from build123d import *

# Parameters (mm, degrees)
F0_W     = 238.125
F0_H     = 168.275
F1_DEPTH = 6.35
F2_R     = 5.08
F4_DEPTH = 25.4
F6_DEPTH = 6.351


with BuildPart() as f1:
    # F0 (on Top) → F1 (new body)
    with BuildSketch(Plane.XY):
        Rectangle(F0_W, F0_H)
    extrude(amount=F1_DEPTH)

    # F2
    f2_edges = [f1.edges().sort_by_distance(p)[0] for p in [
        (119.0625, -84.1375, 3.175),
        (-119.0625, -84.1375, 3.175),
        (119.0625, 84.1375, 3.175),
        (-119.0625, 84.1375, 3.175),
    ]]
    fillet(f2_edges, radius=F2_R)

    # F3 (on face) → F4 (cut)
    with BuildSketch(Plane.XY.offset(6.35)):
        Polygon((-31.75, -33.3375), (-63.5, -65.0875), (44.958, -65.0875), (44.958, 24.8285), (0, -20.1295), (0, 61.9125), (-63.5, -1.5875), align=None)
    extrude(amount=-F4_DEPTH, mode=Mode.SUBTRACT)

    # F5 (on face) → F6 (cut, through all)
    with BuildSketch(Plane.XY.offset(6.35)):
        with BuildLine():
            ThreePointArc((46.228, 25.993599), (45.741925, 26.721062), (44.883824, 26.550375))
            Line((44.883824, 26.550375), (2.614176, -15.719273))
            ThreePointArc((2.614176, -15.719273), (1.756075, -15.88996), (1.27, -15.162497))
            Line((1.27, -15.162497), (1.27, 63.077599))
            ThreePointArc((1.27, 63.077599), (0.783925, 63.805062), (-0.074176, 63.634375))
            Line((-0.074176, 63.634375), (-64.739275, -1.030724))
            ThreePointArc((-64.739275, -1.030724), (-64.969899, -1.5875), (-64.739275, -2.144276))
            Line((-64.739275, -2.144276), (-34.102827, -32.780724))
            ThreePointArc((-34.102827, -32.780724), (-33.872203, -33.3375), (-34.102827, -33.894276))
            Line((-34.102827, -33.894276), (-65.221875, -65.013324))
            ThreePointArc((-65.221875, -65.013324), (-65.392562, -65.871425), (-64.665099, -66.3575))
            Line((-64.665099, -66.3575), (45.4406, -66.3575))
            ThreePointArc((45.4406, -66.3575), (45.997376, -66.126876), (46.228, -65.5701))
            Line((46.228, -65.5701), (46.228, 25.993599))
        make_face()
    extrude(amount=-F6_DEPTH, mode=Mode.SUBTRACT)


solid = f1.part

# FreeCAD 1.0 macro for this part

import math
import FreeCAD as App
import Part
import Sketcher

V = App.Vector
Q = App.Units.Quantity


def edges_at(feature, points):
    """Names of the edges that pass closest to the given points."""
    edges = feature.Shape.Edges
    near = lambda p: min(range(len(edges)), key=lambda i: edges[i].distToShape(Part.Vertex(*p))[0])
    return sorted({f"Edge{near(p) + 1}" for p in points})

doc = App.newDocument("Part")
body = doc.addObject("PartDesign::Body", "Body")

# Sketch on XY plane
sketch1 = doc.addObject("Sketcher::SketchObject", "Sketch")
body.addObject(sketch1)
sketch1.AttachmentSupport = (doc.XY_Plane, [""])
sketch1.MapMode = "FlatFace"
sketch1.addGeometry(Part.LineSegment(V(-119, 84, 0), V(-119, -84, 0)), False)
sketch1.addGeometry(Part.LineSegment(V(-119, -84, 0), V(119, -84, 0)), False)
sketch1.addGeometry(Part.LineSegment(V(119, -84, 0), V(119, 84, 0)), False)
sketch1.addGeometry(Part.LineSegment(V(119, 84, 0), V(-119, 84, 0)), False)
sketch1.addConstraint(Sketcher.Constraint("Coincident", 0, 2, 1, 1))
sketch1.addConstraint(Sketcher.Constraint("Coincident", 1, 2, 2, 1))
sketch1.addConstraint(Sketcher.Constraint("Coincident", 2, 2, 3, 1))
sketch1.addConstraint(Sketcher.Constraint("Coincident", 3, 2, 0, 1))
sketch1.addConstraint(Sketcher.Constraint("Vertical", 0))
sketch1.addConstraint(Sketcher.Constraint("Horizontal", 1))
sketch1.addConstraint(Sketcher.Constraint("Vertical", 2))
sketch1.addConstraint(Sketcher.Constraint("Horizontal", 3))
sketch1.addConstraint(Sketcher.Constraint("Symmetric", 0, 2, 2, 2, -1, 1))
sketch1.addConstraint(Sketcher.Constraint("DistanceX", 1, 1, 1, 2, Q("9.375 in")))
sketch1.addConstraint(Sketcher.Constraint("DistanceY", 0, 2, 0, 1, Q("6.625 in")))
pad1 = doc.addObject("PartDesign::Pad", "Pad")
body.addObject(pad1)
pad1.Profile = sketch1
pad1.Length = Q("0.25 in")
doc.recompute()

fillet = doc.addObject("PartDesign::Fillet", "Fillet")
body.addObject(fillet)
fillet.Base = (pad1, edges_at(pad1, [
    (119.062, -84.138, 3.175),
    (-119.062, -84.138, 3.175),
    (119.062, 84.138, 3.175),
    (-119.062, 84.138, 3.175),
]))
fillet.Radius = Q("0.2 in")

# Sketch on XY plane
sketch2 = doc.addObject("Sketcher::SketchObject", "Sketch001")
body.addObject(sketch2)
sketch2.AttachmentSupport = (doc.XY_Plane, [""])
sketch2.MapMode = "FlatFace"
sketch2.AttachmentOffset = App.Placement(V(0, 0, 0.25 * 25.4), App.Rotation())
sketch2.addGeometry(Part.LineSegment(V(-32, -33, 0), V(-64, -65, 0)), False)
sketch2.addGeometry(Part.LineSegment(V(-64, -65, 0), V(45, -65, 0)), False)
sketch2.addGeometry(Part.LineSegment(V(45, -65, 0), V(45, 25, 0)), False)
sketch2.addGeometry(Part.LineSegment(V(45, 25, 0), V(0, -20, 0)), False)
sketch2.addGeometry(Part.LineSegment(V(0, -20, 0), V(0, 62, 0)), False)
sketch2.addGeometry(Part.LineSegment(V(0, 62, 0), V(-64, -2, 0)), False)
sketch2.addGeometry(Part.LineSegment(V(-64, -2, 0), V(-32, -33, 0)), False)
sketch2.addConstraint(Sketcher.Constraint("Coincident", 0, 2, 1, 1))
sketch2.addConstraint(Sketcher.Constraint("Coincident", 1, 2, 2, 1))
sketch2.addConstraint(Sketcher.Constraint("Coincident", 2, 2, 3, 1))
sketch2.addConstraint(Sketcher.Constraint("Coincident", 3, 2, 4, 1))
sketch2.addConstraint(Sketcher.Constraint("Coincident", 4, 2, 5, 1))
sketch2.addConstraint(Sketcher.Constraint("Coincident", 5, 2, 6, 1))
sketch2.addConstraint(Sketcher.Constraint("Coincident", 6, 2, 0, 1))
sketch2.addConstraint(Sketcher.Constraint("Horizontal", 1))
sketch2.addConstraint(Sketcher.Constraint("Vertical", 2))
sketch2.addConstraint(Sketcher.Constraint("Vertical", 4))
sketch2.addConstraint(Sketcher.Constraint("PointOnObject", 3, 2, -2))
sketch2.addConstraint(Sketcher.Constraint("Parallel", 0, 3))
sketch2.addConstraint(Sketcher.Constraint("Parallel", 3, 5))
sketch2.addConstraint(Sketcher.Constraint("Perpendicular", 5, 6))
sketch2.addConstraint(Sketcher.Constraint("Vertical", 0, 2, 5, 2))
sketch2.addConstraint(Sketcher.Constraint("Equal", 0, 6))
sketch2.addConstraint(Sketcher.Constraint("DistanceY", 1, 2, 4, 2, Q("5 in")))
sketch2.addConstraint(Sketcher.Constraint("DistanceX", 1, 1, 1, 2, Q("4.27 in")))
sketch2.addConstraint(Sketcher.Constraint("DistanceY", 2, 1, 2, 2, Q("3.54 in")))
sketch2.addConstraint(Sketcher.Constraint("DistanceY", 4, 1, 4, 2, Q("3.23 in")))
sketch2.addConstraint(Sketcher.Constraint("DistanceY", 0, 2, -1, 1, Q("2.5625 in")))
pocket1 = doc.addObject("PartDesign::Pocket", "Pocket")
body.addObject(pocket1)
pocket1.Profile = sketch2
pocket1.Length = Q("1 in")

# Sketch on XY plane
sketch3 = doc.addObject("Sketcher::SketchObject", "Sketch002")
body.addObject(sketch3)
sketch3.AttachmentSupport = (doc.XY_Plane, [""])
sketch3.MapMode = "FlatFace"
sketch3.AttachmentOffset = App.Placement(V(0, 0, 0.25 * 25.4), App.Rotation())
sketch3.addGeometry(Part.ArcOfCircle(Part.Circle(V(45.4, 26, 0), V(0, 0, 1), 0.8), math.radians(0), math.radians(135)), False)
sketch3.addGeometry(Part.LineSegment(V(44.9, 26.6, 0), V(2.6, -15.7, 0)), False)
sketch3.addGeometry(Part.ArcOfCircle(Part.Circle(V(2.1, -15.2, 0), V(0, 0, 1), 0.8), math.radians(180), math.radians(315)), False)
sketch3.addGeometry(Part.LineSegment(V(1.3, -15.2, 0), V(1.3, 63.1, 0)), False)
sketch3.addGeometry(Part.ArcOfCircle(Part.Circle(V(0.5, 63.1, 0), V(0, 0, 1), 0.8), math.radians(0), math.radians(135)), False)
sketch3.addGeometry(Part.LineSegment(V(-0.1, 63.6, 0), V(-64.7, -1, 0)), False)
sketch3.addGeometry(Part.ArcOfCircle(Part.Circle(V(-64.2, -1.6, 0), V(0, 0, 1), 0.8), math.radians(135), math.radians(225)), False)
sketch3.addGeometry(Part.LineSegment(V(-64.7, -2.1, 0), V(-34.1, -32.8, 0)), False)
sketch3.addGeometry(Part.ArcOfCircle(Part.Circle(V(-34.7, -33.3, 0), V(0, 0, 1), 0.8), math.radians(-45), math.radians(45)), False)
sketch3.addGeometry(Part.LineSegment(V(-34.1, -33.9, 0), V(-65.2, -65, 0)), False)
sketch3.addGeometry(Part.ArcOfCircle(Part.Circle(V(-64.7, -65.6, 0), V(0, 0, 1), 0.8), math.radians(135), math.radians(270)), False)
sketch3.addGeometry(Part.LineSegment(V(-64.7, -66.4, 0), V(45.4, -66.4, 0)), False)
sketch3.addGeometry(Part.ArcOfCircle(Part.Circle(V(45.4, -65.6, 0), V(0, 0, 1), 0.8), math.radians(-90), math.radians(0)), False)
sketch3.addGeometry(Part.LineSegment(V(46.2, -65.6, 0), V(46.2, 26, 0)), False)
sketch3.addConstraint(Sketcher.Constraint("Tangent", 0, 2, 1, 1))
sketch3.addConstraint(Sketcher.Constraint("Tangent", 1, 2, 2, 2))
sketch3.addConstraint(Sketcher.Constraint("Tangent", 2, 1, 3, 1))
sketch3.addConstraint(Sketcher.Constraint("Tangent", 3, 2, 4, 1))
sketch3.addConstraint(Sketcher.Constraint("Tangent", 4, 2, 5, 1))
sketch3.addConstraint(Sketcher.Constraint("Tangent", 5, 2, 6, 1))
sketch3.addConstraint(Sketcher.Constraint("Tangent", 6, 2, 7, 1))
sketch3.addConstraint(Sketcher.Constraint("Tangent", 7, 2, 8, 2))
sketch3.addConstraint(Sketcher.Constraint("Tangent", 8, 1, 9, 1))
sketch3.addConstraint(Sketcher.Constraint("Tangent", 9, 2, 10, 1))
sketch3.addConstraint(Sketcher.Constraint("Tangent", 10, 2, 11, 1))
sketch3.addConstraint(Sketcher.Constraint("Tangent", 11, 2, 12, 1))
sketch3.addConstraint(Sketcher.Constraint("Tangent", 12, 2, 13, 1))
sketch3.addConstraint(Sketcher.Constraint("Tangent", 13, 2, 0, 1))
sketch3.addConstraint(Sketcher.Constraint("Vertical", 3))
sketch3.addConstraint(Sketcher.Constraint("Horizontal", 11))
sketch3.addConstraint(Sketcher.Constraint("Vertical", 13))
sketch3.addConstraint(Sketcher.Constraint("Equal", 0, 2))
sketch3.addConstraint(Sketcher.Constraint("Equal", 2, 4))
sketch3.addConstraint(Sketcher.Constraint("Equal", 4, 6))
sketch3.addConstraint(Sketcher.Constraint("Equal", 6, 8))
sketch3.addConstraint(Sketcher.Constraint("Equal", 8, 10))
sketch3.addConstraint(Sketcher.Constraint("Equal", 10, 12))
sketch3.addConstraint(Sketcher.Constraint("Parallel", 1, 5))
sketch3.addConstraint(Sketcher.Constraint("Perpendicular", 5, 7))
sketch3.addConstraint(Sketcher.Constraint("Perpendicular", 7, 9))
sketch3.addConstraint(Sketcher.Constraint("Vertical", 5, 2, 6, 2))
sketch3.addConstraint(Sketcher.Constraint("Radius", 0, Q("0.031 in")))
sketch3.addConstraint(Sketcher.Constraint("DistanceY", 10, 2, 8, 3, Q("1.3 in")))
sketch3.addConstraint(Sketcher.Constraint("DistanceX", -1, 1, 2, 1, Q("0.05 in")))
sketch3.addConstraint(Sketcher.Constraint("DistanceX", -1, 1, 12, 2, Q("1.82 in")))
sketch3.addConstraint(Sketcher.Constraint("DistanceY", 0, 3, 4, 3, Q("1.46 in")))
sketch3.addConstraint(Sketcher.Constraint("DistanceY", 8, 3, 6, 3, Q("1.25 in")))
sketch3.addConstraint(Sketcher.Constraint("DistanceY", 6, 3, -1, 1, Q("0.0625 in")))
sketch3.addConstraint(Sketcher.Constraint("DistanceX", 11, 1, 11, 2, Q("110.105699 mm")))
pocket2 = doc.addObject("PartDesign::Pocket", "Pocket001")
body.addObject(pocket2)
pocket2.Profile = sketch3
pocket2.Type = "ThroughAll"

doc.recompute()
